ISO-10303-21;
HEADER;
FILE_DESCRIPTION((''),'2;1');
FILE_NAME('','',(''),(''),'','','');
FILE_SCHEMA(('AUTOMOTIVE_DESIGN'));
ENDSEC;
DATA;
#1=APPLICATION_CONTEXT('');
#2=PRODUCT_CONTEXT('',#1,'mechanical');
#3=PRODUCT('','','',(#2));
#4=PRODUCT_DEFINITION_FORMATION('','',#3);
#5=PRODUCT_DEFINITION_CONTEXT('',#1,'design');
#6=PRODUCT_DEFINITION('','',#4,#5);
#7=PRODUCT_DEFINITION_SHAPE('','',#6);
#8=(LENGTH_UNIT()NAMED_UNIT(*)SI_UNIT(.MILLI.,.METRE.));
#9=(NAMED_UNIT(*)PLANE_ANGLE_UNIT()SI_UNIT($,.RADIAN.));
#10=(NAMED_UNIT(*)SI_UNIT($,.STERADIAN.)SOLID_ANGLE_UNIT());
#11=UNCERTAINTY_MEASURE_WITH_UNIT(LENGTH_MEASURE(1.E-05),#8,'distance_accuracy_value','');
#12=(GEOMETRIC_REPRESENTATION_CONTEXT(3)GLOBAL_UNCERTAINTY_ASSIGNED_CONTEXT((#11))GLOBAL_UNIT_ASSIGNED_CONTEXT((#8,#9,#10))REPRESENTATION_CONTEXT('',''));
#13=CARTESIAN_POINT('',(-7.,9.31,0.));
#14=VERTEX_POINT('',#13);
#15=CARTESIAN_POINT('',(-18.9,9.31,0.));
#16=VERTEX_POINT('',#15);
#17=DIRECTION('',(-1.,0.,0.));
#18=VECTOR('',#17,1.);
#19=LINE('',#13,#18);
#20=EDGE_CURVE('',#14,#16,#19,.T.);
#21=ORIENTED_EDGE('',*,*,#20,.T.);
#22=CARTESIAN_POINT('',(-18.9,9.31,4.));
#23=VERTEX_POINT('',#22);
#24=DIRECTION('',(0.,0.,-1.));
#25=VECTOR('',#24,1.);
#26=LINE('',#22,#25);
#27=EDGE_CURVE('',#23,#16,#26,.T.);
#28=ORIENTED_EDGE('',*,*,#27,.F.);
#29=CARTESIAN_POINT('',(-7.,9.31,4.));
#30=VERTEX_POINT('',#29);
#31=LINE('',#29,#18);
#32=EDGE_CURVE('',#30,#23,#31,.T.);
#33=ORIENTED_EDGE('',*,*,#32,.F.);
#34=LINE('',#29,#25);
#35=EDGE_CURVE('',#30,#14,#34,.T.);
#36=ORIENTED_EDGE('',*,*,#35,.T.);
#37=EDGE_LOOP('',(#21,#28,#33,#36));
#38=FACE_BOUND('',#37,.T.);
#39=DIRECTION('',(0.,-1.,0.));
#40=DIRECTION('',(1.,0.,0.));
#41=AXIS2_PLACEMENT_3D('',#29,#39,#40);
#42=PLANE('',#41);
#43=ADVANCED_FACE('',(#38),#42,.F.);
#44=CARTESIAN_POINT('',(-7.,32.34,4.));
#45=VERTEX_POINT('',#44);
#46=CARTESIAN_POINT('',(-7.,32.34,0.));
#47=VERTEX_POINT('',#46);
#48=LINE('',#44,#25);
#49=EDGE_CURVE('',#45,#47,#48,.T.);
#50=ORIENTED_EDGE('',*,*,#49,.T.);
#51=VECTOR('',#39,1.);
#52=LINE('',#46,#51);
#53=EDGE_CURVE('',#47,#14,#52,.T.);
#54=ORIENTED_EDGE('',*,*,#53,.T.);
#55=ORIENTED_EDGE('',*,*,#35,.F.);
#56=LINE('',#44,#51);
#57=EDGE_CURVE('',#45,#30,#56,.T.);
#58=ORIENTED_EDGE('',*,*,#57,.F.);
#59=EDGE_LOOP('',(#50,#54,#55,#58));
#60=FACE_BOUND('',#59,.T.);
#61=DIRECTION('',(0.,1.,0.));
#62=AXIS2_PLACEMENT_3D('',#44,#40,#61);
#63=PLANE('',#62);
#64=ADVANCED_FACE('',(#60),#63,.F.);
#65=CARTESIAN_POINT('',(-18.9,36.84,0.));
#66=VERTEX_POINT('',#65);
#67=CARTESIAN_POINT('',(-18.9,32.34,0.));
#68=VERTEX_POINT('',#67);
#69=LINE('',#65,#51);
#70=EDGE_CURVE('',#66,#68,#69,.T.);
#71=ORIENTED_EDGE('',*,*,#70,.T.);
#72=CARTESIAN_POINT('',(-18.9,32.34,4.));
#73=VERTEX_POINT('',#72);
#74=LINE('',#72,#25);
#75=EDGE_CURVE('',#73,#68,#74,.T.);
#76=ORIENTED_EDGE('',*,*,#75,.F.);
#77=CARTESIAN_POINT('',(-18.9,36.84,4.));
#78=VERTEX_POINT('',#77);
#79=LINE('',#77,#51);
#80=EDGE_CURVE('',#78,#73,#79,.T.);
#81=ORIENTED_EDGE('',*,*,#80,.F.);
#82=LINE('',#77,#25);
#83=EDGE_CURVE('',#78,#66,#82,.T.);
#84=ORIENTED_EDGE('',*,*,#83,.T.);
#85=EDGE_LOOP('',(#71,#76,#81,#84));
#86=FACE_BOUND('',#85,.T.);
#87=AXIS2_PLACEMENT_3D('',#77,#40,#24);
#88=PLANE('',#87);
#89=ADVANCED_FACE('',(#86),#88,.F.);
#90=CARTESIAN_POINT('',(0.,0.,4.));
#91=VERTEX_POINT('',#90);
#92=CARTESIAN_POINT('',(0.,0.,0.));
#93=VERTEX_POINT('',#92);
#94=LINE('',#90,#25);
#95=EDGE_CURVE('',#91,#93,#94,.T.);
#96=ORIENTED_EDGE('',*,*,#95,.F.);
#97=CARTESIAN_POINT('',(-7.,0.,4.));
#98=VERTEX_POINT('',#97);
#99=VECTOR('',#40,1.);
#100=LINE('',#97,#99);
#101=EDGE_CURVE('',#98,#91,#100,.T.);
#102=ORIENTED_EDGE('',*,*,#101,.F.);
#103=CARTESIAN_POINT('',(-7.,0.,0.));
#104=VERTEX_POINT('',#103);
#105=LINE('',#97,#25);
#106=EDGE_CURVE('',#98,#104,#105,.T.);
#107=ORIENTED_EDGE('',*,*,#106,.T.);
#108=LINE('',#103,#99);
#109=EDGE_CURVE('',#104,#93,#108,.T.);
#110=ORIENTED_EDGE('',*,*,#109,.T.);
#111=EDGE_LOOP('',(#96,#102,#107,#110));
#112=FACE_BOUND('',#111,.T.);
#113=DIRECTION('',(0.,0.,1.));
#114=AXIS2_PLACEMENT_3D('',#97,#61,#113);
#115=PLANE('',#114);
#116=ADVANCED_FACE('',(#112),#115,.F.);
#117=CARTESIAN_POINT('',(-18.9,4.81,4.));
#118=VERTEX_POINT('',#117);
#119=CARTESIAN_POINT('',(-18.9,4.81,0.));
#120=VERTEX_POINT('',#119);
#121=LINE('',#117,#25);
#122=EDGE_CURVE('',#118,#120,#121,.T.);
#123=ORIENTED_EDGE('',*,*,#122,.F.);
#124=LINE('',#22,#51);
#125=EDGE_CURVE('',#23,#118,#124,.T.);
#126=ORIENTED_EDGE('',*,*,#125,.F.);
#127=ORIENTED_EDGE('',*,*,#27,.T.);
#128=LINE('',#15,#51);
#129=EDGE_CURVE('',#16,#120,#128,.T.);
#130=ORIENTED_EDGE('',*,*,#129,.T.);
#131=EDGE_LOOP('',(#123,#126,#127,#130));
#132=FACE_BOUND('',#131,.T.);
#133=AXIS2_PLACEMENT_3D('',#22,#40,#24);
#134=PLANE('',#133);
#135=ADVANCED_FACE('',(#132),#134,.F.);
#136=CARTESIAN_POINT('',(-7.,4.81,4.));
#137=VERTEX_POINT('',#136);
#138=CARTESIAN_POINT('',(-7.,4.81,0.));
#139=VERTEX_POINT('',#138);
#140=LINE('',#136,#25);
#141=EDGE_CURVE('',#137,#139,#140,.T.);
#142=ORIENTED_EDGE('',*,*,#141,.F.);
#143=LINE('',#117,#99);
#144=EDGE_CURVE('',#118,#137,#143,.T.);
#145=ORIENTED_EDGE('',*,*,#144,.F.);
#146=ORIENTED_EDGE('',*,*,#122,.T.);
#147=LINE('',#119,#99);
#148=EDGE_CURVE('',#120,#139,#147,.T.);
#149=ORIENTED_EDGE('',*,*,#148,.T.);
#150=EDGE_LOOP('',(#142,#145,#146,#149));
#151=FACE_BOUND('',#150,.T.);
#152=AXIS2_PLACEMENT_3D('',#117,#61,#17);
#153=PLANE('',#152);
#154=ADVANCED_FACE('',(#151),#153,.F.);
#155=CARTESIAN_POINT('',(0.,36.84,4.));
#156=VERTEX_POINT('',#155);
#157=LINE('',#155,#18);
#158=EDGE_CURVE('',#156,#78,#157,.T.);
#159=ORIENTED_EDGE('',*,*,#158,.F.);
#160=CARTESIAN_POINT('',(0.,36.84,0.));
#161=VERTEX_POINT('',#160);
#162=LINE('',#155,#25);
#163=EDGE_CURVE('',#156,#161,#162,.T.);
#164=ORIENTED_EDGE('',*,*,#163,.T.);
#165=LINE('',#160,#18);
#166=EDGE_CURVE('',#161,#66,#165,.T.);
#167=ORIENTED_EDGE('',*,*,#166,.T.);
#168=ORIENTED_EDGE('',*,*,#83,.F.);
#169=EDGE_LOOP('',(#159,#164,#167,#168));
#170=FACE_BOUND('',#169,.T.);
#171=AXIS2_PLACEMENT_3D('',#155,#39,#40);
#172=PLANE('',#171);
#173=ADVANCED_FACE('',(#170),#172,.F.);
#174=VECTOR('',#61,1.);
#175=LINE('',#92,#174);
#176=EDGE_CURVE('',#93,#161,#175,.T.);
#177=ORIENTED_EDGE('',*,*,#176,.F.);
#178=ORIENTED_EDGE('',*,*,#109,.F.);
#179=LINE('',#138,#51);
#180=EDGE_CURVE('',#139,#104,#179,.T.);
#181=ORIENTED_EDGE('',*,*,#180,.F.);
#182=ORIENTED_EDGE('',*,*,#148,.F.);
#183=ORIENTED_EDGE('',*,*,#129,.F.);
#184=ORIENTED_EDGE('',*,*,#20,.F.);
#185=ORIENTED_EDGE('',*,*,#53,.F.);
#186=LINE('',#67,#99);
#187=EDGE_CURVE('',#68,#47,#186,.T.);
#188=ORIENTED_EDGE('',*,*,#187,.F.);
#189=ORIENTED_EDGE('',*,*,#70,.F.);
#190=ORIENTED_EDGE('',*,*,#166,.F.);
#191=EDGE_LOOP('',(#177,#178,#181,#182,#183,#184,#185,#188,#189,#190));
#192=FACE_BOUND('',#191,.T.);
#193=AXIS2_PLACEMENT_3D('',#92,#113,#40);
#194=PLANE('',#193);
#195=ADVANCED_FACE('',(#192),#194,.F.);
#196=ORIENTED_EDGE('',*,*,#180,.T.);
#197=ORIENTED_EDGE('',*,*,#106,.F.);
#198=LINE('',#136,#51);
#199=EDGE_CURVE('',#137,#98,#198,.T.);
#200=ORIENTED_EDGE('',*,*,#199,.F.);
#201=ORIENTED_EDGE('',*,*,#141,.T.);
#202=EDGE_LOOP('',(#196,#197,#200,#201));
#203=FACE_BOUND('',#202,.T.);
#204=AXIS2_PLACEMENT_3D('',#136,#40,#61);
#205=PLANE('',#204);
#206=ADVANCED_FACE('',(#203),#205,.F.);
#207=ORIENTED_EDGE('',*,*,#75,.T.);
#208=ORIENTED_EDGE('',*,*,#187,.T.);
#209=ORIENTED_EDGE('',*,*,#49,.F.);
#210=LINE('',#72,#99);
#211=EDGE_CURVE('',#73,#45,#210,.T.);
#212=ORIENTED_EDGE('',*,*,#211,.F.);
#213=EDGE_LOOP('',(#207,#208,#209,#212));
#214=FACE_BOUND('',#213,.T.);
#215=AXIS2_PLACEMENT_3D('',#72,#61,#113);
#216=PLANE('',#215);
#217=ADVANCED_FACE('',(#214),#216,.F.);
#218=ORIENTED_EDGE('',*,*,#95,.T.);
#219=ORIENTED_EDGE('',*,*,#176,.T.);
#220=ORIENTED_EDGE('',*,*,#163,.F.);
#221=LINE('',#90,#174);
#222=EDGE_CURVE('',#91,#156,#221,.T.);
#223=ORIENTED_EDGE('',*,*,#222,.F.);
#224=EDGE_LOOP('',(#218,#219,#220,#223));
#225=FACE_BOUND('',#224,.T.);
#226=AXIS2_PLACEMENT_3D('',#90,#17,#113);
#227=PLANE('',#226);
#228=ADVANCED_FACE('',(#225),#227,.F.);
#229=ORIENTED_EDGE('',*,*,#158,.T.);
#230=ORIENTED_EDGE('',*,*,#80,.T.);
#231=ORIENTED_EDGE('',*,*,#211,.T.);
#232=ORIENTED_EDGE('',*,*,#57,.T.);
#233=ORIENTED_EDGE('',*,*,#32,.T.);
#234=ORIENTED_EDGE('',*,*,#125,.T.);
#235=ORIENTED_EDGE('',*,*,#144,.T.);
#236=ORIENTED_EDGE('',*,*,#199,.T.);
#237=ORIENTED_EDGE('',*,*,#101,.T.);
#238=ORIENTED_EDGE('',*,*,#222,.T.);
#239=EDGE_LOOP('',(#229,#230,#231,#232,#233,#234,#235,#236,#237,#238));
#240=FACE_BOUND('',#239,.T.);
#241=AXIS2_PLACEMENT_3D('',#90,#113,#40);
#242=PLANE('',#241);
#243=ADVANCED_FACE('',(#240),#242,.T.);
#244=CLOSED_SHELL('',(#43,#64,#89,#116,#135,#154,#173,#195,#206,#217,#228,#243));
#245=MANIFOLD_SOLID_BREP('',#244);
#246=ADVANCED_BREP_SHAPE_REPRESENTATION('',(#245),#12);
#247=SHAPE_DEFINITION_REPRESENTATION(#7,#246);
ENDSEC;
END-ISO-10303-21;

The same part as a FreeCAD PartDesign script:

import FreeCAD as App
import Part
import Sketcher
from FreeCAD import Vector
Q = App.Units.Quantity

doc = App.newDocument("Part")
params = doc.addObject("Spreadsheet::Sheet", "Params")
for row, (alias, value) in enumerate([
    ("sketch1_width", "7 mm"),
    ("sketch1_width2", "18.9 mm"),
    ("sketch1_height", "4.5 mm"),
    ("sketch1_height2", "36.84 mm"),
    ("sketch1_height3", "23.03 mm"),
    ("pad1_length", "4 mm"),
], start=1):
    params.set(f"A{row}", alias)
    params.set(f"B{row}", "=" + value)
    params.setAlias(f"B{row}", alias)

body = doc.addObject("PartDesign::Body", "Body")

# Sketch on XY plane
sketch1 = doc.addObject("Sketcher::SketchObject", "Sketch")
body.addObject(sketch1)
sketch1.AttachmentSupport = (doc.XY_Plane, [""])
sketch1.MapMode = "FlatFace"
sketch1.addGeometry(Part.LineSegment(Vector(0, 0, 0), Vector(0, 36.8, 0)), False)
sketch1.addGeometry(Part.LineSegment(Vector(0, 36.8, 0), Vector(-18.9, 36.8, 0)), False)
sketch1.addGeometry(Part.LineSegment(Vector(-18.9, 36.8, 0), Vector(-18.9, 32.3, 0)), False)
sketch1.addGeometry(Part.LineSegment(Vector(-18.9, 32.3, 0), Vector(-7, 32.3, 0)), False)
sketch1.addGeometry(Part.LineSegment(Vector(-7, 32.3, 0), Vector(-7, 9.3, 0)), False)
sketch1.addGeometry(Part.LineSegment(Vector(-7, 9.3, 0), Vector(-18.9, 9.3, 0)), False)
sketch1.addGeometry(Part.LineSegment(Vector(-18.9, 9.3, 0), Vector(-18.9, 4.8, 0)), False)
sketch1.addGeometry(Part.LineSegment(Vector(-18.9, 4.8, 0), Vector(-7, 4.8, 0)), False)
sketch1.addGeometry(Part.LineSegment(Vector(-7, 4.8, 0), Vector(-7, 0, 0)), False)
sketch1.addGeometry(Part.LineSegment(Vector(-7, 0, 0), Vector(0, 0, 0)), False)
sketch1.addConstraint(Sketcher.Constraint("Coincident", 0, 2, 1, 1))
sketch1.addConstraint(Sketcher.Constraint("Coincident", 1, 2, 2, 1))
sketch1.addConstraint(Sketcher.Constraint("Coincident", 2, 2, 3, 1))
sketch1.addConstraint(Sketcher.Constraint("Coincident", 3, 2, 4, 1))
sketch1.addConstraint(Sketcher.Constraint("Coincident", 4, 2, 5, 1))
sketch1.addConstraint(Sketcher.Constraint("Coincident", 5, 2, 6, 1))
sketch1.addConstraint(Sketcher.Constraint("Coincident", 6, 2, 7, 1))
sketch1.addConstraint(Sketcher.Constraint("Coincident", 7, 2, 8, 1))
sketch1.addConstraint(Sketcher.Constraint("Coincident", 8, 2, 9, 1))
sketch1.addConstraint(Sketcher.Constraint("Coincident", 9, 2, 0, 1))
sketch1.addConstraint(Sketcher.Constraint("Vertical", 0))
sketch1.addConstraint(Sketcher.Constraint("Horizontal", 1))
sketch1.addConstraint(Sketcher.Constraint("Vertical", 2))
sketch1.addConstraint(Sketcher.Constraint("Horizontal", 3))
sketch1.addConstraint(Sketcher.Constraint("Vertical", 4))
sketch1.addConstraint(Sketcher.Constraint("Horizontal", 5))
sketch1.addConstraint(Sketcher.Constraint("Vertical", 6))
sketch1.addConstraint(Sketcher.Constraint("Horizontal", 7))
sketch1.addConstraint(Sketcher.Constraint("Vertical", 8))
sketch1.addConstraint(Sketcher.Constraint("Horizontal", 9))
sketch1.addConstraint(Sketcher.Constraint("Coincident", 9, 2, -1, 1))
sketch1.addConstraint(Sketcher.Constraint("Vertical", 2, 2, 5, 2))
sketch1.addConstraint(Sketcher.Constraint("Vertical", 4, 2, 7, 2))
sketch1.addConstraint(Sketcher.Constraint("Equal", 2, 6))
sketch1.addConstraint(Sketcher.Constraint("DistanceX", 9, 1, 9, 2, Q("7 mm")))
sketch1.addConstraint(Sketcher.Constraint("DistanceX", 1, 2, 1, 1, Q("18.9 mm")))
sketch1.addConstraint(Sketcher.Constraint("DistanceY", 2, 2, 2, 1, Q("4.5 mm")))
sketch1.addConstraint(Sketcher.Constraint("DistanceY", 0, 1, 0, 2, Q("36.84 mm")))
sketch1.addConstraint(Sketcher.Constraint("DistanceY", 4, 2, 4, 1, Q("23.03 mm")))
sketch1.setExpression("Constraints[24]", "Params.sketch1_width")
sketch1.setExpression("Constraints[25]", "Params.sketch1_width2")
sketch1.setExpression("Constraints[26]", "Params.sketch1_height")
sketch1.setExpression("Constraints[27]", "Params.sketch1_height2")
sketch1.setExpression("Constraints[28]", "Params.sketch1_height3")
pad1 = doc.addObject("PartDesign::Pad", "Pad")
body.addObject(pad1)
pad1.Profile = sketch1
pad1.setExpression("Length", "Params.pad1_length")

doc.recompute()
